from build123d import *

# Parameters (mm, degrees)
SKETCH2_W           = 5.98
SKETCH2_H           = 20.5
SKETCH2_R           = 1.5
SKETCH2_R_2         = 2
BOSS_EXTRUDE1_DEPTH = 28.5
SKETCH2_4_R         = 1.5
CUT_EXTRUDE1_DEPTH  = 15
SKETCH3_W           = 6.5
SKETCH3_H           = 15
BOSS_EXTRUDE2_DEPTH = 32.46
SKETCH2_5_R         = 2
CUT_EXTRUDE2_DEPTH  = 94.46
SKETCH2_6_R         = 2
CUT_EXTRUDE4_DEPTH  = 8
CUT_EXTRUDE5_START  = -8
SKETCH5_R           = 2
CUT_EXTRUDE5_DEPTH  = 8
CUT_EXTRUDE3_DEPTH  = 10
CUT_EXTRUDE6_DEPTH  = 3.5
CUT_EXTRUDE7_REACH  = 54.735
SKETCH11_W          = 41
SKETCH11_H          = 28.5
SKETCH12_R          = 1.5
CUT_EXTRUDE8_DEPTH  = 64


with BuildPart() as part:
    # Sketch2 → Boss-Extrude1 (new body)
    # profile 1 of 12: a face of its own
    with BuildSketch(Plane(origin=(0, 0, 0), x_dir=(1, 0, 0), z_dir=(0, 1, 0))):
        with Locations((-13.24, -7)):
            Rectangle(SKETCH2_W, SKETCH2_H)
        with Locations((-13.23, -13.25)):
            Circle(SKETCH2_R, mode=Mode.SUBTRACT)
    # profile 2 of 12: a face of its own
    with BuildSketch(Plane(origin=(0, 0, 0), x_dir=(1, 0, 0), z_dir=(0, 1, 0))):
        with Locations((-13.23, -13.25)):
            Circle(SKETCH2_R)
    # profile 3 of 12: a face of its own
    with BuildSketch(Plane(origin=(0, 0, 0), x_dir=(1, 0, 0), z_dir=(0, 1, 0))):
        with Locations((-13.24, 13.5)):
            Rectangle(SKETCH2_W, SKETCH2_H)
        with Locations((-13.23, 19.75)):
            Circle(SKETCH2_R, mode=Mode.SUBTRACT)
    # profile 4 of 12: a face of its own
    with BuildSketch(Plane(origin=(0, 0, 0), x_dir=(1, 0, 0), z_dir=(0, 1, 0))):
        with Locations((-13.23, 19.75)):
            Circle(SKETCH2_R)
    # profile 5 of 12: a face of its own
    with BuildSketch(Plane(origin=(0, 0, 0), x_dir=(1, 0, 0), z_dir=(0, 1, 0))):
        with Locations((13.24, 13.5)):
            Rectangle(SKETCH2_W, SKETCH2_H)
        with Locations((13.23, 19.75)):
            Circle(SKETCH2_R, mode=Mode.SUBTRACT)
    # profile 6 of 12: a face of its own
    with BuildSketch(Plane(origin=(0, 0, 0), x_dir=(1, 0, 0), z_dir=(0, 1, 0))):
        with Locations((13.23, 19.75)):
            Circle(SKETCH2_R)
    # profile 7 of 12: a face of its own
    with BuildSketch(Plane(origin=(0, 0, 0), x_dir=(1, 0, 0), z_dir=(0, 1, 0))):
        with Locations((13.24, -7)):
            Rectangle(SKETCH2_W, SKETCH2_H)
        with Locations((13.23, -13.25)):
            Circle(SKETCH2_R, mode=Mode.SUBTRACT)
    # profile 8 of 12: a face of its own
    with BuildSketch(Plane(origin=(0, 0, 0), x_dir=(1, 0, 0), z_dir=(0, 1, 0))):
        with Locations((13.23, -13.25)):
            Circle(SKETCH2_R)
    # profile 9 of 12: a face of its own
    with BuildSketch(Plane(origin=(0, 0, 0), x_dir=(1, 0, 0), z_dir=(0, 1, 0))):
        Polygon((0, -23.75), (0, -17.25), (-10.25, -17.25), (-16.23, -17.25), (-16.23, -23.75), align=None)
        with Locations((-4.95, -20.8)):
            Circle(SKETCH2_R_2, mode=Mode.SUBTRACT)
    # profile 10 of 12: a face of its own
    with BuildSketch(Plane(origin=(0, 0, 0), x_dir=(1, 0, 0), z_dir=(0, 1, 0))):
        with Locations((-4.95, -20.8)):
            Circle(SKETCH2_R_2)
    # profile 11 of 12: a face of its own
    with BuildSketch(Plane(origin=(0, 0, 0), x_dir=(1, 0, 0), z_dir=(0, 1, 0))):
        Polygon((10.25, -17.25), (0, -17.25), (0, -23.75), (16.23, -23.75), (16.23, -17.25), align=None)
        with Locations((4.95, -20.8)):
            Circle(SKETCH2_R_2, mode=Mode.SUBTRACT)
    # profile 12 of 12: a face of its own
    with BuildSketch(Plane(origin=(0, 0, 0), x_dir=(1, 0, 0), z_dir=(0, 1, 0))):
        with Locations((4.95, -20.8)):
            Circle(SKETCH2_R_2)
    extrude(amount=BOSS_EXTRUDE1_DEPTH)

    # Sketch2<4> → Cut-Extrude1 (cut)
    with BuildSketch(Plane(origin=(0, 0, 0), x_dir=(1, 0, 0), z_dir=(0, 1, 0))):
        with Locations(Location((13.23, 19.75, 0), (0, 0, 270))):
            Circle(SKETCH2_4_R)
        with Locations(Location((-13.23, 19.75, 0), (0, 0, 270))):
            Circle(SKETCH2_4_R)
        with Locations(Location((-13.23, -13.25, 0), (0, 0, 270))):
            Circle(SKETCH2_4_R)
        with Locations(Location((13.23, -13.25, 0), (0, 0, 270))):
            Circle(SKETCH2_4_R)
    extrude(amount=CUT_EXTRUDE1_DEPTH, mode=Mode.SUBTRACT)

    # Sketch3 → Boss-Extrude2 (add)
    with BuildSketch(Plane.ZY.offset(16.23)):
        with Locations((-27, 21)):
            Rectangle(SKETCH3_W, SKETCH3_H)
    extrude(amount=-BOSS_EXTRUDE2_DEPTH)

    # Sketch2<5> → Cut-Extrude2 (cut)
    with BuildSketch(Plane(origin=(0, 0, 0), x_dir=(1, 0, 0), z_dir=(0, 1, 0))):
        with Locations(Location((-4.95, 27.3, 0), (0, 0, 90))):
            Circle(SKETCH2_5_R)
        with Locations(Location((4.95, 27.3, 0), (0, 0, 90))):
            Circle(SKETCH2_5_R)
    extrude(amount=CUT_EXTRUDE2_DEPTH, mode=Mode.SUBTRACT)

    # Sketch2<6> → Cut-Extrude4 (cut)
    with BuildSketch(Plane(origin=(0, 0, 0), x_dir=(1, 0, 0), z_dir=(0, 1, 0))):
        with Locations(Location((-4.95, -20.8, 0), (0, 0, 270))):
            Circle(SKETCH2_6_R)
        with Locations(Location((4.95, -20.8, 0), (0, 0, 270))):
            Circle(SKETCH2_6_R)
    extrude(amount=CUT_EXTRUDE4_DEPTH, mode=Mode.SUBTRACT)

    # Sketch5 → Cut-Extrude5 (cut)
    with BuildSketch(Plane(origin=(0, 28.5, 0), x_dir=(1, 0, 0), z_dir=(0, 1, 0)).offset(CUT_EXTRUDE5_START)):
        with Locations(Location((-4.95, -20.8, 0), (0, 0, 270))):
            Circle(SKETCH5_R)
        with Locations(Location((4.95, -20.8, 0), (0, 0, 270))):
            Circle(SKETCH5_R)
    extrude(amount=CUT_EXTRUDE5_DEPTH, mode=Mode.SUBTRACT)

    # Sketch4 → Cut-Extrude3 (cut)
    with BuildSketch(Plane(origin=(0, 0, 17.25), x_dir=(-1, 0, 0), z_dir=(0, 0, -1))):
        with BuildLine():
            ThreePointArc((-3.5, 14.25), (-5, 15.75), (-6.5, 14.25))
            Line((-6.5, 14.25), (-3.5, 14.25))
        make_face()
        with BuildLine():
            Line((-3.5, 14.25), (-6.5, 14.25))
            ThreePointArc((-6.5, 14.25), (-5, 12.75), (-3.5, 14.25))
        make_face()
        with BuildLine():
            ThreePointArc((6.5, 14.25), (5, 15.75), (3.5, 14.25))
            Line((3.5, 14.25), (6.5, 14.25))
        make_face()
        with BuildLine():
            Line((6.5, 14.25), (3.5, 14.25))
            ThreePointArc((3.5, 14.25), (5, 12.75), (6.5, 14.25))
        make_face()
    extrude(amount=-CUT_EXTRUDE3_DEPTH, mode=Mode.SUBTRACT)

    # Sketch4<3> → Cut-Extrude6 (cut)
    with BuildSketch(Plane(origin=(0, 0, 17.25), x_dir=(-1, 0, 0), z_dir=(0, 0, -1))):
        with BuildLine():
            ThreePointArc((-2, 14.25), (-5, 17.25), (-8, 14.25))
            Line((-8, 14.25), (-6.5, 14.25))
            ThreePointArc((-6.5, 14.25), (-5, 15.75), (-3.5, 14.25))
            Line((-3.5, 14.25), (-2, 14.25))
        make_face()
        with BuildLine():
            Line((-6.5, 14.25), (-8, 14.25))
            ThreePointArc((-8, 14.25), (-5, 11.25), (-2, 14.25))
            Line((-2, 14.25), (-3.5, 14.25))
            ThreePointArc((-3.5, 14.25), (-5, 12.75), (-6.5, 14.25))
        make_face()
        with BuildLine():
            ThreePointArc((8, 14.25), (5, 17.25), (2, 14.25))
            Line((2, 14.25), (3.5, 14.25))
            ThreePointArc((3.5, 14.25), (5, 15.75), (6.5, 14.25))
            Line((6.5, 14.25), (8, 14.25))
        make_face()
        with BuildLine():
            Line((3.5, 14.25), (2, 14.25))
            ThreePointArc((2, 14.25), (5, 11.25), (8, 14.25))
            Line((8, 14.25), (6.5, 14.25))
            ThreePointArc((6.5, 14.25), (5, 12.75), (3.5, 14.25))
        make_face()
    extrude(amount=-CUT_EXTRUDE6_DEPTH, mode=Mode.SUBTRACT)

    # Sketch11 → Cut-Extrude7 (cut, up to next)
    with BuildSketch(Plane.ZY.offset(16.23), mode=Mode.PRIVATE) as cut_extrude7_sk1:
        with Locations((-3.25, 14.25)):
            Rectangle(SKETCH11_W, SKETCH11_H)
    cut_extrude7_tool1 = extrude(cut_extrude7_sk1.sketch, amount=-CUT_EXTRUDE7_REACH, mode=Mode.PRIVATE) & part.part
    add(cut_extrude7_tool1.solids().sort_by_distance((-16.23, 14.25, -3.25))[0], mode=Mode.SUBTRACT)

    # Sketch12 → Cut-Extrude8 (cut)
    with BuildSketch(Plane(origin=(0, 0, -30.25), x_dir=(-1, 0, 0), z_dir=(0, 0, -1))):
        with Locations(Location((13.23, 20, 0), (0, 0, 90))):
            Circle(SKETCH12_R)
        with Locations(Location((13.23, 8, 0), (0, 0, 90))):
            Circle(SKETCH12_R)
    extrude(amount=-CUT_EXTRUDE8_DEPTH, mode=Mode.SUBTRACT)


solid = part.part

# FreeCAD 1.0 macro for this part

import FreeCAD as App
import Part
import Sketcher
Q = App.Units.Quantity


def add_polygon(sketch, points):
    """Adds a closed chain of lines whose ends are joined by coincident constraints."""
    first, n = sketch.GeometryCount, len(points)
    for a, b in zip(points, points[1:] + points[:1]):
        sketch.addGeometry(Part.LineSegment(App.Vector(*a, 0), App.Vector(*b, 0)), False)
    for i in range(n):
        sketch.addConstraint(Sketcher.Constraint("Coincident", first + i, 2, first + (i + 1) % n, 1))

doc = App.newDocument("Part")
params = doc.addObject("Spreadsheet::Sheet", "Params")
for row, (alias, value) in enumerate([
    ("sketch1_height", "41 mm"),
    ("sketch1_width", "20.5 mm"),
    ("sketch1_height2", "47.5 mm"),
    ("sketch1_width2", "32.46 mm"),
    ("pad1_length", "28.5 mm"),
    ("sketch2_diameter", "3 mm"),
    ("pocket1_length", "15 mm"),
    ("sketch3_width", "15 mm"),
    ("sketch3_height", "6.5 mm"),
    ("pad2_length", "32.46 mm"),
    ("sketch4_diameter", "4 mm"),
    ("pocket2_length", "94.46 mm"),
    ("sketch5_diameter", "4 mm"),
    ("pocket3_length", "8 mm"),
    ("sketch6_diameter", "4 mm"),
    ("pocket4_length", "8 mm"),
    ("sketch7_diameter", "3 mm"),
    ("pocket5_length", "10 mm"),
    ("sketch8_diameter", "6 mm"),
    ("sketch8_diameter2", "3 mm"),
    ("pocket6_length", "3.5 mm"),
    ("sketch9_height", "41 mm"),
    ("sketch9_width", "28.5 mm"),
    ("sketch10_diameter", "3 mm"),
    ("pocket8_length", "64 mm"),
], start=1):
    params.set(f"A{row}", alias)
    params.set(f"B{row}", "=" + value)
    params.setAlias(f"B{row}", alias)

body = doc.addObject("PartDesign::Body", "Body")

# Sketch on XZ plane
sketch1 = body.newObject("Sketcher::SketchObject", "Sketch")
sketch1.AttachmentSupport = (doc.getObject("XZ_Plane"), [""])
sketch1.MapMode = "FlatFace"
add_polygon(sketch1, [(-16, 24), (16, 24), (16, -24), (10, -24), (10, 17), (-10, 17), (-10, -24), (-16, -24)])  # lines 0-7
sketch1.addConstraint(Sketcher.Constraint("Horizontal", 0))
sketch1.addConstraint(Sketcher.Constraint("Vertical", 1))
sketch1.addConstraint(Sketcher.Constraint("Horizontal", 2))
sketch1.addConstraint(Sketcher.Constraint("Vertical", 3))
sketch1.addConstraint(Sketcher.Constraint("Horizontal", 4))
sketch1.addConstraint(Sketcher.Constraint("Vertical", 5))
sketch1.addConstraint(Sketcher.Constraint("Horizontal", 6))
sketch1.addConstraint(Sketcher.Constraint("Vertical", 7))
sketch1.addConstraint(Sketcher.Constraint("Symmetric", 0, 2, 6, 2, -1, 1))
sketch1.addConstraint(Sketcher.Constraint("Symmetric", 2, 2, 5, 2, -2))
sketch1.addConstraint(Sketcher.Constraint("DistanceY", 3, 1, 3, 2, Q("41 mm")))
sketch1.addConstraint(Sketcher.Constraint("DistanceX", 4, 2, 4, 1, Q("20.5 mm")))
sketch1.addConstraint(Sketcher.Constraint("DistanceY", 1, 2, 1, 1, Q("47.5 mm")))
sketch1.addConstraint(Sketcher.Constraint("DistanceX", 0, 1, 0, 2, Q("32.46 mm")))
sketch1.setExpression("Constraints[18]", "Params.sketch1_height")
sketch1.setExpression("Constraints[19]", "Params.sketch1_width")
sketch1.setExpression("Constraints[20]", "Params.sketch1_height2")
sketch1.setExpression("Constraints[21]", "Params.sketch1_width2")
pad1 = body.newObject("PartDesign::Pad", "Pad")
pad1.Profile = sketch1
pad1.setExpression("Length", "Params.pad1_length")
pad1.Reversed = True

# Sketch on XZ plane
sketch2 = body.newObject("Sketcher::SketchObject", "Sketch001")
sketch2.AttachmentSupport = (doc.getObject("XZ_Plane"), [""])
sketch2.MapMode = "FlatFace"
sketch2.addGeometry(Part.Circle(App.Vector(13.2, -19.8, 0), App.Vector(0, 0, 1), 1.5), False)
sketch2.addGeometry(Part.Circle(App.Vector(-13.2, -19.8, 0), App.Vector(0, 0, 1), 1.5), False)
sketch2.addGeometry(Part.Circle(App.Vector(-13.2, 13.2, 0), App.Vector(0, 0, 1), 1.5), False)
sketch2.addGeometry(Part.Circle(App.Vector(13.2, 13.2, 0), App.Vector(0, 0, 1), 1.5), False)
sketch2.addConstraint(Sketcher.Constraint("Equal", 0, 1))
sketch2.addConstraint(Sketcher.Constraint("Equal", 1, 2))
sketch2.addConstraint(Sketcher.Constraint("Equal", 2, 3))
sketch2.addConstraint(Sketcher.Constraint("Symmetric", 0, 3, 1, 3, -2))
sketch2.addConstraint(Sketcher.Constraint("Symmetric", 2, 3, 3, 3, -2))
sketch2.addConstraint(Sketcher.Constraint("Vertical", 1, 3, 2, 3))
sketch2.addConstraint(Sketcher.Constraint("Diameter", 0, Q("3 mm")))
sketch2.addConstraint(Sketcher.Constraint("DistanceY", 1, 3, 2, 3, Q("33 mm")))
sketch2.addConstraint(Sketcher.Constraint("DistanceX", -1, 1, 0, 3, Q("13.23 mm")))
sketch2.addConstraint(Sketcher.Constraint("DistanceY", 0, 3, -1, 1, Q("19.75 mm")))
sketch2.setExpression("Constraints[6]", "Params.sketch2_diameter")
pocket1 = body.newObject("PartDesign::Pocket", "Pocket")
pocket1.Profile = sketch2
pocket1.setExpression("Length", "Params.pocket1_length")

# Sketch on YZ plane
sketch3 = body.newObject("Sketcher::SketchObject", "Sketch002")
sketch3.AttachmentSupport = (doc.getObject("YZ_Plane"), [""])
sketch3.MapMode = "FlatFace"
sketch3.AttachmentOffset = App.Placement(App.Vector(0, 0, -16.23), App.Rotation())
add_polygon(sketch3, [(28, -30), (14, -30), (14, -24), (28, -24)])  # lines 0-3
sketch3.addConstraint(Sketcher.Constraint("Horizontal", 0))
sketch3.addConstraint(Sketcher.Constraint("Vertical", 1))
sketch3.addConstraint(Sketcher.Constraint("Horizontal", 2))
sketch3.addConstraint(Sketcher.Constraint("Vertical", 3))
sketch3.addConstraint(Sketcher.Constraint("DistanceX", 0, 2, 0, 1, Q("15 mm")))
sketch3.addConstraint(Sketcher.Constraint("DistanceY", 1, 1, 1, 2, Q("6.5 mm")))
sketch3.addConstraint(Sketcher.Constraint("DistanceX", -1, 1, 0, 2, Q("13.5 mm")))
sketch3.addConstraint(Sketcher.Constraint("DistanceY", 0, 2, -1, 1, Q("30.25 mm")))
sketch3.setExpression("Constraints[8]", "Params.sketch3_width")
sketch3.setExpression("Constraints[9]", "Params.sketch3_height")
pad2 = body.newObject("PartDesign::Pad", "Pad001")
pad2.Profile = sketch3
pad2.setExpression("Length", "Params.pad2_length")

# Sketch on XZ plane
sketch4 = body.newObject("Sketcher::SketchObject", "Sketch003")
sketch4.AttachmentSupport = (doc.getObject("XZ_Plane"), [""])
sketch4.MapMode = "FlatFace"
sketch4.addGeometry(Part.Circle(App.Vector(-5, -27.3, 0), App.Vector(0, 0, 1), 2), False)
sketch4.addGeometry(Part.Circle(App.Vector(5, -27.3, 0), App.Vector(0, 0, 1), 2), False)
sketch4.addConstraint(Sketcher.Constraint("Equal", 0, 1))
sketch4.addConstraint(Sketcher.Constraint("Symmetric", 0, 3, 1, 3, -2))
sketch4.addConstraint(Sketcher.Constraint("Diameter", 0, Q("4 mm")))
sketch4.addConstraint(Sketcher.Constraint("DistanceY", 0, 3, -1, 1, Q("27.3 mm")))
sketch4.addConstraint(Sketcher.Constraint("DistanceX", 0, 3, 1, 3, Q("9.9 mm")))
sketch4.setExpression("Constraints[2]", "Params.sketch4_diameter")
pocket2 = body.newObject("PartDesign::Pocket", "Pocket001")
pocket2.Profile = sketch4
pocket2.setExpression("Length", "Params.pocket2_length")

# Sketch on XZ plane
sketch5 = body.newObject("Sketcher::SketchObject", "Sketch004")
sketch5.AttachmentSupport = (doc.getObject("XZ_Plane"), [""])
sketch5.MapMode = "FlatFace"
sketch5.addGeometry(Part.Circle(App.Vector(-5, 20.8, 0), App.Vector(0, 0, 1), 2), False)
sketch5.addGeometry(Part.Circle(App.Vector(5, 20.8, 0), App.Vector(0, 0, 1), 2), False)
sketch5.addConstraint(Sketcher.Constraint("Equal", 0, 1))
sketch5.addConstraint(Sketcher.Constraint("Symmetric", 0, 3, 1, 3, -2))
sketch5.addConstraint(Sketcher.Constraint("Diameter", 0, Q("4 mm")))
sketch5.addConstraint(Sketcher.Constraint("DistanceY", -1, 1, 0, 3, Q("20.8 mm")))
sketch5.addConstraint(Sketcher.Constraint("DistanceX", 0, 3, 1, 3, Q("9.9 mm")))
sketch5.setExpression("Constraints[2]", "Params.sketch5_diameter")
pocket3 = body.newObject("PartDesign::Pocket", "Pocket002")
pocket3.Profile = sketch5
pocket3.setExpression("Length", "Params.pocket3_length")

# Sketch on XZ plane
sketch6 = body.newObject("Sketcher::SketchObject", "Sketch005")
sketch6.AttachmentSupport = (doc.getObject("XZ_Plane"), [""])
sketch6.MapMode = "FlatFace"
sketch6.AttachmentOffset = App.Placement(App.Vector(0, 0, -20.5), App.Rotation())
sketch6.addGeometry(Part.Circle(App.Vector(-5, 20.8, 0), App.Vector(0, 0, 1), 2), False)
sketch6.addGeometry(Part.Circle(App.Vector(5, 20.8, 0), App.Vector(0, 0, 1), 2), False)
sketch6.addConstraint(Sketcher.Constraint("Equal", 0, 1))
sketch6.addConstraint(Sketcher.Constraint("Symmetric", 0, 3, 1, 3, -2))
sketch6.addConstraint(Sketcher.Constraint("Diameter", 0, Q("4 mm")))
sketch6.addConstraint(Sketcher.Constraint("DistanceY", -1, 1, 0, 3, Q("20.8 mm")))
sketch6.addConstraint(Sketcher.Constraint("DistanceX", 0, 3, 1, 3, Q("9.9 mm")))
sketch6.setExpression("Constraints[2]", "Params.sketch6_diameter")
pocket4 = body.newObject("PartDesign::Pocket", "Pocket003")
pocket4.Profile = sketch6
pocket4.setExpression("Length", "Params.pocket4_length")

# Sketch on XY plane
sketch7 = body.newObject("Sketcher::SketchObject", "Sketch006")
sketch7.AttachmentSupport = (doc.getObject("XY_Plane"), [""])
sketch7.MapMode = "FlatFace"
sketch7.AttachmentOffset = App.Placement(App.Vector(0, 0, 17.25), App.Rotation())
sketch7.addGeometry(Part.Circle(App.Vector(5, 14.2, 0), App.Vector(0, 0, 1), 1.5), False)
sketch7.addGeometry(Part.Circle(App.Vector(-5, 14.2, 0), App.Vector(0, 0, 1), 1.5), False)
sketch7.addConstraint(Sketcher.Constraint("Equal", 0, 1))
sketch7.addConstraint(Sketcher.Constraint("Symmetric", 0, 3, 1, 3, -2))
sketch7.addConstraint(Sketcher.Constraint("Diameter", 0, Q("3 mm")))
sketch7.addConstraint(Sketcher.Constraint("DistanceX", -1, 1, 0, 3, Q("5 mm")))
sketch7.addConstraint(Sketcher.Constraint("DistanceY", -1, 1, 0, 3, Q("14.25 mm")))
sketch7.setExpression("Constraints[2]", "Params.sketch7_diameter")
pocket5 = body.newObject("PartDesign::Pocket", "Pocket004")
pocket5.Profile = sketch7
pocket5.setExpression("Length", "Params.pocket5_length")
pocket5.Reversed = True

# Sketch on XY plane
sketch8 = body.newObject("Sketcher::SketchObject", "Sketch007")
sketch8.AttachmentSupport = (doc.getObject("XY_Plane"), [""])
sketch8.MapMode = "FlatFace"
sketch8.AttachmentOffset = App.Placement(App.Vector(0, 0, 17.25), App.Rotation())
sketch8.addGeometry(Part.Circle(App.Vector(5, 14.2, 0), App.Vector(0, 0, 1), 3), False)
sketch8.addGeometry(Part.Circle(App.Vector(5, 14.2, 0), App.Vector(0, 0, 1), 1.5), False)
sketch8.addGeometry(Part.Circle(App.Vector(-5, 14.2, 0), App.Vector(0, 0, 1), 3), False)
sketch8.addGeometry(Part.Circle(App.Vector(-5, 14.2, 0), App.Vector(0, 0, 1), 1.5), False)
sketch8.addConstraint(Sketcher.Constraint("Coincident", 1, 3, 0, 3))
sketch8.addConstraint(Sketcher.Constraint("Coincident", 3, 3, 2, 3))
sketch8.addConstraint(Sketcher.Constraint("Equal", 0, 2))
sketch8.addConstraint(Sketcher.Constraint("Equal", 1, 3))
sketch8.addConstraint(Sketcher.Constraint("Symmetric", 0, 3, 2, 3, -2))
sketch8.addConstraint(Sketcher.Constraint("Diameter", 0, Q("6 mm")))
sketch8.addConstraint(Sketcher.Constraint("Diameter", 1, Q("3 mm")))
sketch8.addConstraint(Sketcher.Constraint("DistanceX", -1, 1, 0, 3, Q("5 mm")))
sketch8.addConstraint(Sketcher.Constraint("DistanceY", -1, 1, 0, 3, Q("14.25 mm")))
sketch8.setExpression("Constraints[5]", "Params.sketch8_diameter")
sketch8.setExpression("Constraints[6]", "Params.sketch8_diameter2")
pocket6 = body.newObject("PartDesign::Pocket", "Pocket005")
pocket6.Profile = sketch8
pocket6.setExpression("Length", "Params.pocket6_length")
pocket6.Reversed = True

# Sketch on YZ plane
sketch9 = body.newObject("Sketcher::SketchObject", "Sketch008")
sketch9.AttachmentSupport = (doc.getObject("YZ_Plane"), [""])
sketch9.MapMode = "FlatFace"
sketch9.AttachmentOffset = App.Placement(App.Vector(0, 0, -16.23), App.Rotation())
add_polygon(sketch9, [(28, -24), (0, -24), (0, 17), (28, 17)])  # lines 0-3
sketch9.addConstraint(Sketcher.Constraint("Horizontal", 0))
sketch9.addConstraint(Sketcher.Constraint("Vertical", 1))
sketch9.addConstraint(Sketcher.Constraint("Horizontal", 2))
sketch9.addConstraint(Sketcher.Constraint("Vertical", 3))
sketch9.addConstraint(Sketcher.Constraint("PointOnObject", 0, 2, -2))
sketch9.addConstraint(Sketcher.Constraint("DistanceY", 1, 1, 1, 2, Q("41 mm")))
sketch9.addConstraint(Sketcher.Constraint("DistanceX", 0, 2, 0, 1, Q("28.5 mm")))
sketch9.addConstraint(Sketcher.Constraint("DistanceY", 0, 2, -1, 1, Q("23.75 mm")))
sketch9.setExpression("Constraints[9]", "Params.sketch9_height")
sketch9.setExpression("Constraints[10]", "Params.sketch9_width")
pocket7 = body.newObject("PartDesign::Pocket", "Pocket006")
pocket7.Profile = sketch9
pocket7.Type = "UpToFirst"
pocket7.Reversed = True

# Sketch on XY plane
sketch10 = body.newObject("Sketcher::SketchObject", "Sketch009")
sketch10.AttachmentSupport = (doc.getObject("XY_Plane"), [""])
sketch10.MapMode = "FlatFace"
sketch10.AttachmentOffset = App.Placement(App.Vector(0, 0, -30.25), App.Rotation())
sketch10.addGeometry(Part.Circle(App.Vector(-13.2, 20, 0), App.Vector(0, 0, 1), 1.5), False)
sketch10.addGeometry(Part.Circle(App.Vector(-13.2, 8, 0), App.Vector(0, 0, 1), 1.5), False)
sketch10.addConstraint(Sketcher.Constraint("Equal", 0, 1))
sketch10.addConstraint(Sketcher.Constraint("Vertical", 0, 3, 1, 3))
sketch10.addConstraint(Sketcher.Constraint("Diameter", 0, Q("3 mm")))
sketch10.addConstraint(Sketcher.Constraint("DistanceY", -1, 1, 0, 3, Q("20 mm")))
sketch10.addConstraint(Sketcher.Constraint("DistanceY", -1, 1, 1, 3, Q("8 mm")))
sketch10.addConstraint(Sketcher.Constraint("DistanceX", 0, 3, -1, 1, Q("13.23 mm")))
sketch10.setExpression("Constraints[2]", "Params.sketch10_diameter")
pocket8 = body.newObject("PartDesign::Pocket", "Pocket007")
pocket8.Profile = sketch10
pocket8.setExpression("Length", "Params.pocket8_length")
pocket8.Reversed = True

doc.recompute()
